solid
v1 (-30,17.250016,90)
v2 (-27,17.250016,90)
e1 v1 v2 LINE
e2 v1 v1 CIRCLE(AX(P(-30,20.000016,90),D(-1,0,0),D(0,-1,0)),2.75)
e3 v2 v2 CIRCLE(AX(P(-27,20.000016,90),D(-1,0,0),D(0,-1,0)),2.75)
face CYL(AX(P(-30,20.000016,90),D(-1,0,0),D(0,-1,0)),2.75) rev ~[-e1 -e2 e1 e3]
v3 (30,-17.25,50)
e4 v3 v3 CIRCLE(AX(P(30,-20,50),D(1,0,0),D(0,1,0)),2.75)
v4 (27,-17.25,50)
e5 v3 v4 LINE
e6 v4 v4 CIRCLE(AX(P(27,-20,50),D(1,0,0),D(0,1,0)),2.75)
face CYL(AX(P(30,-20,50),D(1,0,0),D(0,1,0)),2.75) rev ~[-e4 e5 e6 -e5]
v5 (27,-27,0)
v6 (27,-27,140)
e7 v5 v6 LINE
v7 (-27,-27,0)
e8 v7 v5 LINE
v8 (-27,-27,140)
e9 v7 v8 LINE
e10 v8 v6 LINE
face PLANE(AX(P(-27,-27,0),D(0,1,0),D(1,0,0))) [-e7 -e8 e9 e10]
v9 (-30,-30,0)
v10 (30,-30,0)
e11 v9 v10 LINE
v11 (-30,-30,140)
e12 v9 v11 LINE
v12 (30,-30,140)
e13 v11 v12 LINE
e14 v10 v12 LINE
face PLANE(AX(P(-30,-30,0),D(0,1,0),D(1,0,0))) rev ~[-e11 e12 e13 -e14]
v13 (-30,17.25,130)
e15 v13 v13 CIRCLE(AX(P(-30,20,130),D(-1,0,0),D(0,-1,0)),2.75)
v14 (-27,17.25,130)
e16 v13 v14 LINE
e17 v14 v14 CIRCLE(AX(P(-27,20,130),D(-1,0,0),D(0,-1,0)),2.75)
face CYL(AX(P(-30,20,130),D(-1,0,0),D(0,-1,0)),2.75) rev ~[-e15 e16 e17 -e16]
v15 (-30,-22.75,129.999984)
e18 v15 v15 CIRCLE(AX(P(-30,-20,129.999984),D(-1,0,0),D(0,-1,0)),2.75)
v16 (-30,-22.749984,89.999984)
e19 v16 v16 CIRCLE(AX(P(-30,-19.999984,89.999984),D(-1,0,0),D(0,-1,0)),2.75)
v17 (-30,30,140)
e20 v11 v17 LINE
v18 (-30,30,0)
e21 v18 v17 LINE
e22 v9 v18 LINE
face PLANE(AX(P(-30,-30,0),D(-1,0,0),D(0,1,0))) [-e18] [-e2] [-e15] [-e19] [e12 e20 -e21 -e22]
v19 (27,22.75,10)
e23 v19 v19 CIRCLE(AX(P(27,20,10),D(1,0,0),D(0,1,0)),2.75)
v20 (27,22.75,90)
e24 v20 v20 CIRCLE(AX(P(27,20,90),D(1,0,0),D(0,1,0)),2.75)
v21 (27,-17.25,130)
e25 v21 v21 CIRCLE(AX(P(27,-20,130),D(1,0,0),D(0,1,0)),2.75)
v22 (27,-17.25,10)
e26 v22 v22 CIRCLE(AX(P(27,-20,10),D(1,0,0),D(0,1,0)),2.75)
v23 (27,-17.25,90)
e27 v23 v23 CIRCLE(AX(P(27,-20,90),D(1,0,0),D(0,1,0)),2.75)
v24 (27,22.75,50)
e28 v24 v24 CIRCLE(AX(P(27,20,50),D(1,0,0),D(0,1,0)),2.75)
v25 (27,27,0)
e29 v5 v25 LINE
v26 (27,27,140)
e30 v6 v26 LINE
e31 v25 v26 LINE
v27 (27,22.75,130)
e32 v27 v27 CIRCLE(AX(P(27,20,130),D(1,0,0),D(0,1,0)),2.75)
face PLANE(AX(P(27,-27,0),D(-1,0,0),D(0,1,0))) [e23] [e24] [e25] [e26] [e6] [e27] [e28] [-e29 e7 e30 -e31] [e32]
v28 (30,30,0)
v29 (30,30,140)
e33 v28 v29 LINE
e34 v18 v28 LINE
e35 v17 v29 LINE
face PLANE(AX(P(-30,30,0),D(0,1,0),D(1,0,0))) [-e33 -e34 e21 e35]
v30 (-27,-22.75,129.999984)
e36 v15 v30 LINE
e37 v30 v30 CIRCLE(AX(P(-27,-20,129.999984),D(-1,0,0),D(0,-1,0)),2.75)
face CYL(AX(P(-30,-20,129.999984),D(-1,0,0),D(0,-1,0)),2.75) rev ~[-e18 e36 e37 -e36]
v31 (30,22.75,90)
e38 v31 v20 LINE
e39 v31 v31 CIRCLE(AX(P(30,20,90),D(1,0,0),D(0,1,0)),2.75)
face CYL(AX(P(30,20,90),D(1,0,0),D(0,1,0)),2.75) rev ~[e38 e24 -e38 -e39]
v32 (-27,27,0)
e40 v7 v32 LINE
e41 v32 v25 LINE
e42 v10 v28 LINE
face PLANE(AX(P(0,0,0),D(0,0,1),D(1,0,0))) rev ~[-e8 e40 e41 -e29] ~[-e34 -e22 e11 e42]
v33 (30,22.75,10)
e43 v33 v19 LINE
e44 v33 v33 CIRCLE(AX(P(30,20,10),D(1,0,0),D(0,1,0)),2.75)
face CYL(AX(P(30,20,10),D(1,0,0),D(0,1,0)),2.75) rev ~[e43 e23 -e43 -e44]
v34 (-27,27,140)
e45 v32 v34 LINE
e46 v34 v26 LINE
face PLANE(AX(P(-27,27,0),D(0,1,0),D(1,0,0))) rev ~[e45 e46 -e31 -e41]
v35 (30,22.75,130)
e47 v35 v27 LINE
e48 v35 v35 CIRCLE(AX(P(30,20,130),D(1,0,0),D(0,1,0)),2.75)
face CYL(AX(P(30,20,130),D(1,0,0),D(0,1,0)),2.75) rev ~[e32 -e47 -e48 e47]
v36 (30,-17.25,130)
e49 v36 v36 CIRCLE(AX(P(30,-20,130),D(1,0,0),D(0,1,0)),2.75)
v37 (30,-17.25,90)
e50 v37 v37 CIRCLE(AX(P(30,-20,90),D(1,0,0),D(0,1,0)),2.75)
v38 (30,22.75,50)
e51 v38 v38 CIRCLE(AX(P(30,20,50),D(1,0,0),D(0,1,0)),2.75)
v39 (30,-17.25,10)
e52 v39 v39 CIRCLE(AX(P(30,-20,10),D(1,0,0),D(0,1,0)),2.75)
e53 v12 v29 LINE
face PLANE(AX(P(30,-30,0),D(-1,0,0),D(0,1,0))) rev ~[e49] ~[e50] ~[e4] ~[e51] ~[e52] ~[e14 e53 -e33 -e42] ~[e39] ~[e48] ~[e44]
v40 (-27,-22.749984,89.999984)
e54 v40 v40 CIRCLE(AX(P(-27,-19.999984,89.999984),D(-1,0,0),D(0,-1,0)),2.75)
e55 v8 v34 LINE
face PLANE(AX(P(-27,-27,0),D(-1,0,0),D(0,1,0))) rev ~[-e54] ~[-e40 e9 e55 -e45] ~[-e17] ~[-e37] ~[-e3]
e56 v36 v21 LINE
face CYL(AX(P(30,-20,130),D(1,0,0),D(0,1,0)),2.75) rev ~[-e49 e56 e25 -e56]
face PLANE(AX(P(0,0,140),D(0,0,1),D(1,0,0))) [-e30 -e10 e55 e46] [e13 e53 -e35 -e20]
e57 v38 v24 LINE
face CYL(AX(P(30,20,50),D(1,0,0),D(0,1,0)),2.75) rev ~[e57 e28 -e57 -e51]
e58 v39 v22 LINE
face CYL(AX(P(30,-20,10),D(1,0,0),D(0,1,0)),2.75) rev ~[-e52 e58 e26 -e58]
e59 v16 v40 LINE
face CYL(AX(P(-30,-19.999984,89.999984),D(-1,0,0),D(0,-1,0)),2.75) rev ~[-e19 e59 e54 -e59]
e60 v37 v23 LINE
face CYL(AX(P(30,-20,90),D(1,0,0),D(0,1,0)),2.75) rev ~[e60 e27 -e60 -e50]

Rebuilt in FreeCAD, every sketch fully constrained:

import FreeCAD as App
import Part
import Sketcher
from FreeCAD import Vector

doc = App.newDocument("Part")
params = doc.addObject("Spreadsheet::Sheet", "Params")
for row, (alias, value) in enumerate([
    ("sketch1_width", "60 mm"),
    ("sketch1_width2", "54 mm"),
    ("pad1_length", "140 mm"),
    ("sketch2_diameter", "5.5 mm"),
    ("pocket1_length", "3 mm"),
    ("sketch3_diameter", "5.5 mm"),
    ("pocket2_length", "3 mm"),
], start=1):
    params.set(f"A{row}", alias)
    params.set(f"B{row}", "=" + value)
    params.setAlias(f"B{row}", alias)

body = doc.addObject("PartDesign::Body", "Body")

# Sketch on XY plane
sketch1 = body.newObject("Sketcher::SketchObject", "Sketch")
sketch1.AttachmentSupport = (doc.getObject("XY_Plane"), [""])
sketch1.MapMode = "FlatFace"
sketch1.addGeometry(Part.LineSegment(Vector(-30, 30, 0), Vector(-30, -30, 0)), False)
sketch1.addGeometry(Part.LineSegment(Vector(-30, -30, 0), Vector(30, -30, 0)), False)
sketch1.addGeometry(Part.LineSegment(Vector(30, -30, 0), Vector(30, 30, 0)), False)
sketch1.addGeometry(Part.LineSegment(Vector(30, 30, 0), Vector(-30, 30, 0)), False)
sketch1.addGeometry(Part.LineSegment(Vector(27, -27, 0), Vector(-27, -27, 0)), False)
sketch1.addGeometry(Part.LineSegment(Vector(-27, -27, 0), Vector(-27, 27, 0)), False)
sketch1.addGeometry(Part.LineSegment(Vector(-27, 27, 0), Vector(27, 27, 0)), False)
sketch1.addGeometry(Part.LineSegment(Vector(27, 27, 0), Vector(27, -27, 0)), False)
sketch1.addConstraint(Sketcher.Constraint("Coincident", 0, 2, 1, 1))
sketch1.addConstraint(Sketcher.Constraint("Coincident", 1, 2, 2, 1))
sketch1.addConstraint(Sketcher.Constraint("Coincident", 2, 2, 3, 1))
sketch1.addConstraint(Sketcher.Constraint("Coincident", 3, 2, 0, 1))
sketch1.addConstraint(Sketcher.Constraint("Coincident", 4, 2, 5, 1))
sketch1.addConstraint(Sketcher.Constraint("Coincident", 5, 2, 6, 1))
sketch1.addConstraint(Sketcher.Constraint("Coincident", 6, 2, 7, 1))
sketch1.addConstraint(Sketcher.Constraint("Coincident", 7, 2, 4, 1))
sketch1.addConstraint(Sketcher.Constraint("Vertical", 0))
sketch1.addConstraint(Sketcher.Constraint("Horizontal", 1))
sketch1.addConstraint(Sketcher.Constraint("Vertical", 2))
sketch1.addConstraint(Sketcher.Constraint("Horizontal", 3))
sketch1.addConstraint(Sketcher.Constraint("Horizontal", 4))
sketch1.addConstraint(Sketcher.Constraint("Vertical", 5))
sketch1.addConstraint(Sketcher.Constraint("Horizontal", 6))
sketch1.addConstraint(Sketcher.Constraint("Vertical", 7))
sketch1.addConstraint(Sketcher.Constraint("Symmetric", 0, 2, 2, 2, -1, 1))
sketch1.addConstraint(Sketcher.Constraint("Symmetric", 4, 2, 6, 2, -1, 1))
sketch1.addConstraint(Sketcher.Constraint("Equal", 3, 0))
sketch1.addConstraint(Sketcher.Constraint("Equal", 6, 5))
sketch1.addConstraint(Sketcher.Constraint("DistanceX", 1, 1, 1, 2, 60.0))
sketch1.addConstraint(Sketcher.Constraint("DistanceX", 4, 2, 4, 1, 54.0))
sketch1.setExpression("Constraints[20]", "Params.sketch1_width")
sketch1.setExpression("Constraints[21]", "Params.sketch1_width2")
pad1 = body.newObject("PartDesign::Pad", "Pad")
pad1.Profile = sketch1
pad1.setExpression("Length", "Params.pad1_length")

# Sketch on YZ plane
sketch2 = body.newObject("Sketcher::SketchObject", "Sketch001")
sketch2.AttachmentSupport = (doc.getObject("YZ_Plane"), [""])
sketch2.MapMode = "FlatFace"
sketch2.AttachmentOffset = App.Placement(Vector(0, 0, 30), App.Rotation())
sketch2.addGeometry(Part.Circle(Vector(-20, 130, 0), Vector(0, 0, 1), 2.8), False)
sketch2.addGeometry(Part.Circle(Vector(20, 130, 0), Vector(0, 0, 1), 2.8), False)
sketch2.addGeometry(Part.Circle(Vector(-20, 90, 0), Vector(0, 0, 1), 2.8), False)
sketch2.addGeometry(Part.Circle(Vector(20, 90, 0), Vector(0, 0, 1), 2.8), False)
sketch2.addGeometry(Part.Circle(Vector(-20, 50, 0), Vector(0, 0, 1), 2.8), False)
sketch2.addGeometry(Part.Circle(Vector(20, 50, 0), Vector(0, 0, 1), 2.8), False)
sketch2.addGeometry(Part.Circle(Vector(-20, 10, 0), Vector(0, 0, 1), 2.8), False)
sketch2.addGeometry(Part.Circle(Vector(20, 10, 0), Vector(0, 0, 1), 2.8), False)
sketch2.addConstraint(Sketcher.Constraint("Equal", 0, 1))
sketch2.addConstraint(Sketcher.Constraint("Equal", 1, 2))
sketch2.addConstraint(Sketcher.Constraint("Equal", 2, 3))
sketch2.addConstraint(Sketcher.Constraint("Equal", 3, 4))
sketch2.addConstraint(Sketcher.Constraint("Equal", 4, 5))
sketch2.addConstraint(Sketcher.Constraint("Equal", 5, 6))
sketch2.addConstraint(Sketcher.Constraint("Equal", 6, 7))
sketch2.addConstraint(Sketcher.Constraint("Symmetric", 0, 3, 1, 3, -2))
sketch2.addConstraint(Sketcher.Constraint("Symmetric", 2, 3, 3, 3, -2))
sketch2.addConstraint(Sketcher.Constraint("Symmetric", 4, 3, 5, 3, -2))
sketch2.addConstraint(Sketcher.Constraint("Symmetric", 6, 3, 7, 3, -2))
sketch2.addConstraint(Sketcher.Constraint("Vertical", 0, 3, 2, 3))
sketch2.addConstraint(Sketcher.Constraint("Vertical", 2, 3, 4, 3))
sketch2.addConstraint(Sketcher.Constraint("Vertical", 4, 3, 6, 3))
sketch2.addConstraint(Sketcher.Constraint("Diameter", 0, 5.5))
sketch2.addConstraint(Sketcher.Constraint("DistanceX", 0, 3, -1, 1, 20.0))
sketch2.addConstraint(Sketcher.Constraint("DistanceY", -1, 1, 0, 3, 130.0))
sketch2.addConstraint(Sketcher.Constraint("DistanceY", -1, 1, 2, 3, 90.0))
sketch2.addConstraint(Sketcher.Constraint("DistanceY", -1, 1, 4, 3, 50.0))
sketch2.addConstraint(Sketcher.Constraint("DistanceY", -1, 1, 6, 3, 10.0))
sketch2.setExpression("Constraints[14]", "Params.sketch2_diameter")
pocket1 = body.newObject("PartDesign::Pocket", "Pocket")
pocket1.Profile = sketch2
pocket1.setExpression("Length", "Params.pocket1_length")

# Sketch on YZ plane
sketch3 = body.newObject("Sketcher::SketchObject", "Sketch002")
sketch3.AttachmentSupport = (doc.getObject("YZ_Plane"), [""])
sketch3.MapMode = "FlatFace"
sketch3.AttachmentOffset = App.Placement(Vector(0, 0, -30), App.Rotation())
sketch3.addGeometry(Part.Circle(Vector(20, 130, 0), Vector(0, 0, 1), 2.75), False)
sketch3.addGeometry(Part.Circle(Vector(-20, 129.999984, 0), Vector(0, 0, 1), 2.75), False)
sketch3.addGeometry(Part.Circle(Vector(20.000016, 90, 0), Vector(0, 0, 1), 2.75), False)
sketch3.addGeometry(Part.Circle(Vector(-19.999984, 89.999984, 0), Vector(0, 0, 1), 2.75), False)
sketch3.addConstraint(Sketcher.Constraint("Equal", 0, 1))
sketch3.addConstraint(Sketcher.Constraint("Equal", 1, 2))
sketch3.addConstraint(Sketcher.Constraint("Equal", 2, 3))
sketch3.addConstraint(Sketcher.Constraint("Diameter", 0, 5.5))
sketch3.addConstraint(Sketcher.Constraint("DistanceX", -1, 1, 0, 3, 20.0))
sketch3.addConstraint(Sketcher.Constraint("DistanceY", -1, 1, 0, 3, 130.0))
sketch3.addConstraint(Sketcher.Constraint("DistanceX", 1, 3, -1, 1, 20.0))
sketch3.addConstraint(Sketcher.Constraint("DistanceY", -1, 1, 2, 3, 90.0))
sketch3.addConstraint(Sketcher.Constraint("DistanceX", 3, 3, 2, 3, 40.0))
sketch3.addConstraint(Sketcher.Constraint("DistanceY", 3, 3, 1, 3, 40.0))
sketch3.addConstraint(Sketcher.Constraint("DistanceY", -1, 1, 1, 3, 129.999984))
sketch3.addConstraint(Sketcher.Constraint("DistanceX", -1, 1, 2, 3, 20.000016))
sketch3.setExpression("Constraints[3]", "Params.sketch3_diameter")
pocket2 = body.newObject("PartDesign::Pocket", "Pocket001")
pocket2.Profile = sketch3
pocket2.setExpression("Length", "Params.pocket2_length")
pocket2.Reversed = True

doc.recompute()
